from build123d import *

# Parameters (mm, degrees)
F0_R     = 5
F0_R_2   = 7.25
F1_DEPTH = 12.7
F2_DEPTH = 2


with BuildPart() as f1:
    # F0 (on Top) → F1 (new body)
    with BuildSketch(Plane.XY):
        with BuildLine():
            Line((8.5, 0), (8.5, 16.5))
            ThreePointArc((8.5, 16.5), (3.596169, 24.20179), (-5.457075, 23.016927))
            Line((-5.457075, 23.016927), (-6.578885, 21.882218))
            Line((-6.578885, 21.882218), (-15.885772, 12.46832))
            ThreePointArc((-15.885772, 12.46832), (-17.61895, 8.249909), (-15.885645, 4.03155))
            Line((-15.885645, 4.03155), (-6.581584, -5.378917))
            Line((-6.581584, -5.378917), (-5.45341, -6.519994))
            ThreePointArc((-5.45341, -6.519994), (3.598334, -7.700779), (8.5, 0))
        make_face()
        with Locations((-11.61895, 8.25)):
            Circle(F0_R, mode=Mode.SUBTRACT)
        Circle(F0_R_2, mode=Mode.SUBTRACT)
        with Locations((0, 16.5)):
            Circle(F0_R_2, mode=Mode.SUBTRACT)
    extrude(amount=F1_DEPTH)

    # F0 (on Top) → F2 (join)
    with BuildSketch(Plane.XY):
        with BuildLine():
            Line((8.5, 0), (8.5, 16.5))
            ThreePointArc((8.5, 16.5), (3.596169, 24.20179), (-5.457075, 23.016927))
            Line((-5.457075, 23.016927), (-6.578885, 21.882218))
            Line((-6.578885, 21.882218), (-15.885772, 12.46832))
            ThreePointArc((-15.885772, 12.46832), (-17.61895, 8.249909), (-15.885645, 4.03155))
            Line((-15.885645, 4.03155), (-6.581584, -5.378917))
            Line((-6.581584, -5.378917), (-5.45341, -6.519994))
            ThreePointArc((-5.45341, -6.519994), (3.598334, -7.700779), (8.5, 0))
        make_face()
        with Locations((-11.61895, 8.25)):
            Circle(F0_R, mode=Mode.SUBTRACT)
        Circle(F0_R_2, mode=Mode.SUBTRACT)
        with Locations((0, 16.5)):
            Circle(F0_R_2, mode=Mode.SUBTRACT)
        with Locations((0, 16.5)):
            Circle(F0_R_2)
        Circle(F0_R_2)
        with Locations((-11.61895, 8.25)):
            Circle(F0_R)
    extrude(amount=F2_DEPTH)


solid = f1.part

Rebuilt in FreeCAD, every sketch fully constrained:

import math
import FreeCAD as App
import Part
import Sketcher
from FreeCAD import Vector
Q = App.Units.Quantity

doc = App.newDocument("Part")
body = doc.addObject("PartDesign::Body", "Body")

# Sketch on XY plane
sketch1 = body.newObject("Sketcher::SketchObject", "Sketch")
sketch1.AttachmentSupport = (doc.getObject("XY_Plane"), [""])
sketch1.MapMode = "FlatFace"
sketch1.addGeometry(Part.LineSegment(Vector(8.5, 0, 0), Vector(8.5, 16.5, 0)), False)
sketch1.addGeometry(Part.ArcOfCircle(Part.Circle(Vector(0, 16.5, 0), Vector(0, 0, 1), 8.5), math.radians(0.000001), math.radians(129.941773)), False)
sketch1.addGeometry(Part.LineSegment(Vector(-5.457075, 23.016927, 0), Vector(-6.578885, 21.882218, 0)), False)
sketch1.addGeometry(Part.LineSegment(Vector(-6.578885, 21.882218, 0), Vector(-15.885772, 12.46832, 0)), False)
sketch1.addGeometry(Part.ArcOfCircle(Part.Circle(Vector(-11.61895, 8.249999, 0), Vector(0, 0, 1), 6), math.radians(135.3275), math.radians(224.674225)), False)
sketch1.addGeometry(Part.LineSegment(Vector(-15.885645, 4.03155, 0), Vector(-6.581584, -5.378917, 0)), False)
sketch1.addGeometry(Part.LineSegment(Vector(-6.581584, -5.378917, 0), Vector(-5.45341, -6.519994, 0)), False)
sketch1.addGeometry(Part.ArcOfCircle(Part.Circle(Vector(0, 0, 0), Vector(0, 0, 1), 8.5), math.radians(-129.909563), math.radians(0.000002)), False)
sketch1.addGeometry(Part.Circle(Vector(0, 0, 0), Vector(0, 0, 1), 7.25), False)
sketch1.addGeometry(Part.Circle(Vector(-11.61895, 8.25, 0), Vector(0, 0, 1), 5), False)
sketch1.addGeometry(Part.Circle(Vector(0, 16.5, 0), Vector(0, 0, 1), 7.25), False)
sketch1.addConstraint(Sketcher.Constraint("Coincident", 0, 2, 1, 1))
sketch1.addConstraint(Sketcher.Constraint("Coincident", 1, 2, 2, 1))
sketch1.addConstraint(Sketcher.Constraint("Coincident", 2, 2, 3, 1))
sketch1.addConstraint(Sketcher.Constraint("Coincident", 3, 2, 4, 1))
sketch1.addConstraint(Sketcher.Constraint("Coincident", 4, 2, 5, 1))
sketch1.addConstraint(Sketcher.Constraint("Coincident", 5, 2, 6, 1))
sketch1.addConstraint(Sketcher.Constraint("Coincident", 6, 2, 7, 1))
sketch1.addConstraint(Sketcher.Constraint("Coincident", 7, 2, 0, 1))
sketch1.addConstraint(Sketcher.Constraint("Vertical", 0))
sketch1.addConstraint(Sketcher.Constraint("Coincident", 7, 3, -1, 1))
sketch1.addConstraint(Sketcher.Constraint("Coincident", 8, 3, -1, 1))
sketch1.addConstraint(Sketcher.Constraint("Coincident", 9, 3, 4, 3))
sketch1.addConstraint(Sketcher.Constraint("Coincident", 10, 3, 1, 3))
sketch1.addConstraint(Sketcher.Constraint("PointOnObject", 1, 3, -2))
sketch1.addConstraint(Sketcher.Constraint("PointOnObject", 7, 2, -1))
sketch1.addConstraint(Sketcher.Constraint("Diameter", 9, Q("10 mm")))
sketch1.addConstraint(Sketcher.Constraint("Radius", 4, Q("6 mm")))
sketch1.addConstraint(Sketcher.Constraint("Diameter", 8, Q("14.5 mm")))
sketch1.addConstraint(Sketcher.Constraint("Diameter", 10, Q("14.5 mm")))
sketch1.addConstraint(Sketcher.Constraint("Radius", 1, Q("8.5 mm")))
sketch1.addConstraint(Sketcher.Constraint("DistanceY", 0, 1, 0, 2, Q("16.5 mm")))
sketch1.addConstraint(Sketcher.Constraint("DistanceY", -1, 1, 1, 3, Q("16.5 mm")))
sketch1.addConstraint(Sketcher.Constraint("DistanceY", -1, 1, 4, 3, Q("8.249999 mm")))
sketch1.addConstraint(Sketcher.Constraint("DistanceY", 3, 2, 2, 2, Q("9.413898 mm")))
sketch1.addConstraint(Sketcher.Constraint("Distance", 3, Q("13.23781 mm")))
sketch1.addConstraint(Sketcher.Constraint("Distance", 6, Q("1.604629 mm")))
sketch1.addConstraint(Sketcher.Constraint("DistanceX", 4, 3, -1, 1, Q("11.61895 mm")))
sketch1.addConstraint(Sketcher.Constraint("DistanceY", -1, 1, 2, 2, Q("21.882218 mm")))
sketch1.addConstraint(Sketcher.Constraint("DistanceY", -1, 1, 4, 2, Q("4.03155 mm")))
sketch1.addConstraint(Sketcher.Constraint("DistanceX", 6, 2, -1, 1, Q("5.45341 mm")))
sketch1.addConstraint(Sketcher.Constraint("DistanceX", 2, 2, 1, 2, Q("1.12181 mm")))
sketch1.addConstraint(Sketcher.Constraint("DistanceX", 4, 2, 5, 2, Q("9.304061 mm")))
pad1 = body.newObject("PartDesign::Pad", "Pad")
pad1.Profile = sketch1
pad1.Length = 12.7

# Sketch on XY plane
sketch2 = body.newObject("Sketcher::SketchObject", "Sketch001")
sketch2.AttachmentSupport = (doc.getObject("XY_Plane"), [""])
sketch2.MapMode = "FlatFace"
sketch2.addGeometry(Part.LineSegment(Vector(8.5, 0, 0), Vector(8.5, 16.5, 0)), False)
sketch2.addGeometry(Part.ArcOfCircle(Part.Circle(Vector(0, 16.5, 0), Vector(0, 0, 1), 8.5), math.radians(0.000001), math.radians(129.941773)), False)
sketch2.addGeometry(Part.LineSegment(Vector(-5.457075, 23.016927, 0), Vector(-6.578885, 21.882218, 0)), False)
sketch2.addGeometry(Part.LineSegment(Vector(-6.578885, 21.882218, 0), Vector(-15.885772, 12.46832, 0)), False)
sketch2.addGeometry(Part.ArcOfCircle(Part.Circle(Vector(-11.61895, 8.249999, 0), Vector(0, 0, 1), 6), math.radians(135.3275), math.radians(224.674225)), False)
sketch2.addGeometry(Part.LineSegment(Vector(-15.885645, 4.03155, 0), Vector(-6.581584, -5.378917, 0)), False)
sketch2.addGeometry(Part.LineSegment(Vector(-6.581584, -5.378917, 0), Vector(-5.45341, -6.519994, 0)), False)
sketch2.addGeometry(Part.ArcOfCircle(Part.Circle(Vector(0, 0, 0), Vector(0, 0, 1), 8.5), math.radians(-129.909563), math.radians(0.000002)), False)
sketch2.addConstraint(Sketcher.Constraint("Coincident", 0, 2, 1, 1))
sketch2.addConstraint(Sketcher.Constraint("Coincident", 1, 2, 2, 1))
sketch2.addConstraint(Sketcher.Constraint("Coincident", 2, 2, 3, 1))
sketch2.addConstraint(Sketcher.Constraint("Coincident", 3, 2, 4, 1))
sketch2.addConstraint(Sketcher.Constraint("Coincident", 4, 2, 5, 1))
sketch2.addConstraint(Sketcher.Constraint("Coincident", 5, 2, 6, 1))
sketch2.addConstraint(Sketcher.Constraint("Coincident", 6, 2, 7, 1))
sketch2.addConstraint(Sketcher.Constraint("Coincident", 7, 2, 0, 1))
sketch2.addConstraint(Sketcher.Constraint("Vertical", 0))
sketch2.addConstraint(Sketcher.Constraint("Coincident", 7, 3, -1, 1))
sketch2.addConstraint(Sketcher.Constraint("PointOnObject", 1, 3, -2))
sketch2.addConstraint(Sketcher.Constraint("PointOnObject", 7, 2, -1))
sketch2.addConstraint(Sketcher.Constraint("Radius", 4, Q("6 mm")))
sketch2.addConstraint(Sketcher.Constraint("Radius", 1, Q("8.5 mm")))
sketch2.addConstraint(Sketcher.Constraint("DistanceY", 0, 1, 0, 2, Q("16.5 mm")))
sketch2.addConstraint(Sketcher.Constraint("DistanceY", -1, 1, 1, 3, Q("16.5 mm")))
sketch2.addConstraint(Sketcher.Constraint("DistanceY", -1, 1, 4, 3, Q("8.249999 mm")))
sketch2.addConstraint(Sketcher.Constraint("DistanceY", 3, 2, 2, 2, Q("9.413898 mm")))
sketch2.addConstraint(Sketcher.Constraint("Distance", 3, Q("13.23781 mm")))
sketch2.addConstraint(Sketcher.Constraint("Distance", 6, Q("1.604629 mm")))
sketch2.addConstraint(Sketcher.Constraint("DistanceX", 4, 3, -1, 1, Q("11.61895 mm")))
sketch2.addConstraint(Sketcher.Constraint("DistanceY", -1, 1, 2, 2, Q("21.882218 mm")))
sketch2.addConstraint(Sketcher.Constraint("DistanceY", -1, 1, 4, 2, Q("4.03155 mm")))
sketch2.addConstraint(Sketcher.Constraint("DistanceX", 6, 2, -1, 1, Q("5.45341 mm")))
sketch2.addConstraint(Sketcher.Constraint("DistanceX", 2, 2, 1, 2, Q("1.12181 mm")))
sketch2.addConstraint(Sketcher.Constraint("DistanceX", 4, 2, 5, 2, Q("9.304061 mm")))
pad2 = body.newObject("PartDesign::Pad", "Pad001")
pad2.Profile = sketch2
pad2.Length = 2

doc.recompute()
